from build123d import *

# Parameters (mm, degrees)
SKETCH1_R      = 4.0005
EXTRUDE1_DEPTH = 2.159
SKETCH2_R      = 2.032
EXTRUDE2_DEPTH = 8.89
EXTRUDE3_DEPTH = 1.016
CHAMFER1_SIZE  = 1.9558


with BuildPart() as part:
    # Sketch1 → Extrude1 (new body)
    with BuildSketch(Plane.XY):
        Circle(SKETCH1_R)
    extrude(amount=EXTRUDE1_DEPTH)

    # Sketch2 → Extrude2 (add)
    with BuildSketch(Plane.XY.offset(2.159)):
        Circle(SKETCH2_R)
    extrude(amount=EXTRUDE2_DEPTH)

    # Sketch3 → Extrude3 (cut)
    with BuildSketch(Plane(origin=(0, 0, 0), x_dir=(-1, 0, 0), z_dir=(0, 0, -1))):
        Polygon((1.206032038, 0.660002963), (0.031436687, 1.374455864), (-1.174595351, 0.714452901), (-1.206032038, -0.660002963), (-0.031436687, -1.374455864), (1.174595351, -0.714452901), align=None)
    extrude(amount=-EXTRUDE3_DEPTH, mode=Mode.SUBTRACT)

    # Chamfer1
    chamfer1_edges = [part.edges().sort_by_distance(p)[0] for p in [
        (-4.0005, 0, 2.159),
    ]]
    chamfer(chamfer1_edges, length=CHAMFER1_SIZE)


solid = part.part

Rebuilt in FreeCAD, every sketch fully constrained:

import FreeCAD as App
import Part
import Sketcher
Q = App.Units.Quantity


def edges_at(feature, points):
    """Names of the edges that pass closest to the given points."""
    edges = feature.Shape.Edges
    near = lambda p: min(range(len(edges)), key=lambda i: edges[i].distToShape(Part.Vertex(*p))[0])
    return sorted({f"Edge{near(p) + 1}" for p in points})


def add_polygon(sketch, points):
    """Adds a closed chain of lines whose ends are joined by coincident constraints."""
    first, n = sketch.GeometryCount, len(points)
    for a, b in zip(points, points[1:] + points[:1]):
        sketch.addGeometry(Part.LineSegment(App.Vector(*a, 0), App.Vector(*b, 0)), False)
    for i in range(n):
        sketch.addConstraint(Sketcher.Constraint("Coincident", first + i, 2, first + (i + 1) % n, 1))

doc = App.newDocument("Part")
body = doc.addObject("PartDesign::Body", "Body")

# Sketch on XY plane
sketch1 = body.newObject("Sketcher::SketchObject", "Sketch")
sketch1.AttachmentSupport = (doc.getObject("XY_Plane"), [""])
sketch1.MapMode = "FlatFace"
sketch1.addGeometry(Part.Circle(App.Vector(0, 0, 0), App.Vector(0, 0, 1), 4), False)
sketch1.addConstraint([
    Sketcher.Constraint("Coincident", 0, 3, -1, 1),
    Sketcher.Constraint("Diameter", 0, Q("0.315 in")),
])
pad1 = body.newObject("PartDesign::Pad", "Pad")
pad1.Profile = sketch1
pad1.Length = Q("0.085 in")

# Sketch on XY plane
sketch2 = body.newObject("Sketcher::SketchObject", "Sketch001")
sketch2.AttachmentSupport = (doc.getObject("XY_Plane"), [""])
sketch2.MapMode = "FlatFace"
sketch2.AttachmentOffset = App.Placement(App.Vector(0, 0, 0.085 * 25.4), App.Rotation())
sketch2.addGeometry(Part.Circle(App.Vector(0, 0, 0), App.Vector(0, 0, 1), 2), False)
sketch2.addConstraint([
    Sketcher.Constraint("Coincident", 0, 3, -1, 1),
    Sketcher.Constraint("Diameter", 0, Q("0.16 in")),
])
pad2 = body.newObject("PartDesign::Pad", "Pad001")
pad2.Profile = sketch2
pad2.Length = Q("0.35 in")

# Sketch on XY plane
sketch3 = body.newObject("Sketcher::SketchObject", "Sketch002")
sketch3.AttachmentSupport = (doc.getObject("XY_Plane"), [""])
sketch3.MapMode = "FlatFace"
add_polygon(sketch3, [(-1.2, 0.7), (0, 1.4), (1.2, 0.7), (1.2, -0.7), (0, -1.4), (-1.2, -0.7)])  # lines 0-5
sketch3.addConstraint([
    Sketcher.Constraint("Symmetric", 0, 2, 3, 2, -1, 1),
    Sketcher.Constraint("Symmetric", 1, 2, 4, 2, -1, 1),
    Sketcher.Constraint("Symmetric", 2, 2, 5, 2, -1, 1),
    Sketcher.Constraint("Equal", 0, 1),
    Sketcher.Constraint("Equal", 1, 2),
    Sketcher.Constraint("DistanceX", 0, 2, 2, 2, 1.237469),
    Sketcher.Constraint("DistanceY", 2, 2, 0, 2, 2.034459),
    Sketcher.Constraint("DistanceX", 3, 2, 1, 2, 1.143159),
    Sketcher.Constraint("DistanceY", 3, 2, 1, 2, 2.088909),
])
pocket1 = body.newObject("PartDesign::Pocket", "Pocket")
pocket1.Profile = sketch3
pocket1.Length = Q("0.04 in")
pocket1.Reversed = True
doc.recompute()

chamfer = body.newObject("PartDesign::Chamfer", "Chamfer")
chamfer.Base = (pocket1, edges_at(pocket1, [(-4, 0, 2.159)]))
chamfer.Size = Q("0.077 in")

doc.recompute()
